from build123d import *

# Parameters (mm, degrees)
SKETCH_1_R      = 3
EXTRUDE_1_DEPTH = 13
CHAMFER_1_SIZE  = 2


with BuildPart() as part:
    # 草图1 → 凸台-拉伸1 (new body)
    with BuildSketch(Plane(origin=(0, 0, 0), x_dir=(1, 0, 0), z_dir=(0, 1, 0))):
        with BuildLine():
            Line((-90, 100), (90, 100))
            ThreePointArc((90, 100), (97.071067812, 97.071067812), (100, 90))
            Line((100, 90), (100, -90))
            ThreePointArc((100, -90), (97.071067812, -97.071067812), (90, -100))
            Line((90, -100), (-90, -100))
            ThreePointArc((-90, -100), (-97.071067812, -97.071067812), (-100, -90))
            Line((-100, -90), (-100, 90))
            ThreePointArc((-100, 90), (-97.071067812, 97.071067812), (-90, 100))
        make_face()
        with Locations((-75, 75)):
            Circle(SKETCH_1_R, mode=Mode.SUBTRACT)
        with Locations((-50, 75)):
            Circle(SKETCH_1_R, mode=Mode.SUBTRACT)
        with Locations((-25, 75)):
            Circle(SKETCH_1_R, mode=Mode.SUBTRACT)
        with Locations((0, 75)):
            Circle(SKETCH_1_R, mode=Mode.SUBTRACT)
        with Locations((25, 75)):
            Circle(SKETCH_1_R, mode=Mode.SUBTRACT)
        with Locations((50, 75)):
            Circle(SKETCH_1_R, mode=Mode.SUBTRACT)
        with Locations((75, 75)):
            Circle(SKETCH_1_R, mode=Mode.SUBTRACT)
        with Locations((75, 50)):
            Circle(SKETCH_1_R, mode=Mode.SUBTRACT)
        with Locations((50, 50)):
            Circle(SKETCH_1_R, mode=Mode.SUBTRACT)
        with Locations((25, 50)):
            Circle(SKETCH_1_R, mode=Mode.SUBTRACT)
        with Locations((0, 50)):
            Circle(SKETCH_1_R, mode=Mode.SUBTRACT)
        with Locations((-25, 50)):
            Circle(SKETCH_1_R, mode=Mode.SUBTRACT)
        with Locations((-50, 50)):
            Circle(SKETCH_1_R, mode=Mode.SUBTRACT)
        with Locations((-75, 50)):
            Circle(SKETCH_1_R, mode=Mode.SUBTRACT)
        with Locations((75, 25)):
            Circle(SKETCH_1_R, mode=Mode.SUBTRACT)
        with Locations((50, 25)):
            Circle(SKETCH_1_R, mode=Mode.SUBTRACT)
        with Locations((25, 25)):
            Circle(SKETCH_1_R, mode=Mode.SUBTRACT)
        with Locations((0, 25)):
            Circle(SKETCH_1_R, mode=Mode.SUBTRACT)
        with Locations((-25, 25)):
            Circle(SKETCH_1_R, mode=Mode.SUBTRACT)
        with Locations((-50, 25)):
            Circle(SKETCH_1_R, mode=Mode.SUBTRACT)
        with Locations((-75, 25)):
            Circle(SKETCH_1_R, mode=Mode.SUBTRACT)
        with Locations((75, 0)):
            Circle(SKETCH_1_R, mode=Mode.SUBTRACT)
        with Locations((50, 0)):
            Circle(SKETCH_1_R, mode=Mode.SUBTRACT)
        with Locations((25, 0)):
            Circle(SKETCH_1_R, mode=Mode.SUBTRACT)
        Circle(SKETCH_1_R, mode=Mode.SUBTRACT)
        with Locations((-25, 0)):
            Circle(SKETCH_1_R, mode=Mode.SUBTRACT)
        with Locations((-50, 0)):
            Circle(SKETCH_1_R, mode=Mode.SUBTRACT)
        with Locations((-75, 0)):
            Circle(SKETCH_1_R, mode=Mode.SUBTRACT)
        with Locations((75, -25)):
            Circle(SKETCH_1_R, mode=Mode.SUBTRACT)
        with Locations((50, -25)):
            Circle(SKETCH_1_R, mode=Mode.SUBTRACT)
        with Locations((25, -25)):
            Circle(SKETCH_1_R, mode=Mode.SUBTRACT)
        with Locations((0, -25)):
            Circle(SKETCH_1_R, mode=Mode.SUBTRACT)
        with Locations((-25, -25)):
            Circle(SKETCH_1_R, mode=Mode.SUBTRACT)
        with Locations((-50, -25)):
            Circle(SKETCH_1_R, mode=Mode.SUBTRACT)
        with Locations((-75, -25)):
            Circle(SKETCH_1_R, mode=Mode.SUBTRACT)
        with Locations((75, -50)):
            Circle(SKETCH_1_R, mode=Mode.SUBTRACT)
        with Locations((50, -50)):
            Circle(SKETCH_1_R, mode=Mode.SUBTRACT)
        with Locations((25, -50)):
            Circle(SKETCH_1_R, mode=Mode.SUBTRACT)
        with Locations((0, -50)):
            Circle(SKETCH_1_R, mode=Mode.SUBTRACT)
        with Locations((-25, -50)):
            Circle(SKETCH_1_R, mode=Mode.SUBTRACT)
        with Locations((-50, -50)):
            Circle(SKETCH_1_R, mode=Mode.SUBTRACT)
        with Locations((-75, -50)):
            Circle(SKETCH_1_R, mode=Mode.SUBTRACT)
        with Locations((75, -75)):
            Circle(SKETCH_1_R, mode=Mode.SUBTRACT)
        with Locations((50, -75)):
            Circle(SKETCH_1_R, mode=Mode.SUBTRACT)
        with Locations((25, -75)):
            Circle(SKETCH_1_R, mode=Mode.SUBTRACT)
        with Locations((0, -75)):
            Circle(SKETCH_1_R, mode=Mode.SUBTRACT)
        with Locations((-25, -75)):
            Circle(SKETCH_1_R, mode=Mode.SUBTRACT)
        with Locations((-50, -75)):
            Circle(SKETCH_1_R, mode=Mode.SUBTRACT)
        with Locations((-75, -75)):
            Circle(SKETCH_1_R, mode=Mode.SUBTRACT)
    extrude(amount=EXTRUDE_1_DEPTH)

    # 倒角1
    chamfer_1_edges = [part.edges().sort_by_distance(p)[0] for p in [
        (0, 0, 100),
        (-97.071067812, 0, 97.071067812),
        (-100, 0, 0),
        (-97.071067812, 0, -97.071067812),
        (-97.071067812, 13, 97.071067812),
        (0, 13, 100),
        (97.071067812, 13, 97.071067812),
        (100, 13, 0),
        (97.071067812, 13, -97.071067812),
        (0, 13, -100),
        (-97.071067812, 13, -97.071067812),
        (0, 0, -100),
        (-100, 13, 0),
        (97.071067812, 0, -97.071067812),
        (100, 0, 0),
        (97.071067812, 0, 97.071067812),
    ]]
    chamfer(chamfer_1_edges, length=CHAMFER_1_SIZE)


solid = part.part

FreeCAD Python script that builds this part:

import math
import FreeCAD as App
import Part
import Sketcher
Q = App.Units.Quantity


def edges_at(feature, points):
    """Names of the edges that pass closest to the given points."""
    edges = feature.Shape.Edges
    near = lambda p: min(range(len(edges)), key=lambda i: edges[i].distToShape(Part.Vertex(*p))[0])
    return sorted({f"Edge{near(p) + 1}" for p in points})

doc = App.newDocument("Part")
body = doc.addObject("PartDesign::Body", "Body")

sketch1 = body.newObject("Sketcher::SketchObject", "Sketch")
sketch1.AttachmentSupport = (doc.getObject("XZ_Plane"), [""])
sketch1.MapMode = "FlatFace"
sketch1.addGeometry([
    Part.LineSegment(App.Vector(90, -100, 0), App.Vector(-90, -100, 0)),
    Part.ArcOfCircle(Part.Circle(App.Vector(-90, -90, 0), App.Vector(0, 0, 1), 10), math.radians(180), math.radians(270)),
    Part.LineSegment(App.Vector(-100, -90, 0), App.Vector(-100, 90, 0)),
    Part.ArcOfCircle(Part.Circle(App.Vector(-90, 90, 0), App.Vector(0, 0, 1), 10), math.radians(90), math.radians(180)),
    Part.LineSegment(App.Vector(-90, 100, 0), App.Vector(90, 100, 0)),
    Part.ArcOfCircle(Part.Circle(App.Vector(90, 90, 0), App.Vector(0, 0, 1), 10), math.radians(0), math.radians(90)),
    Part.LineSegment(App.Vector(100, 90, 0), App.Vector(100, -90, 0)),
    Part.ArcOfCircle(Part.Circle(App.Vector(90, -90, 0), App.Vector(0, 0, 1), 10), math.radians(-90), math.radians(0)),
    Part.Circle(App.Vector(75, 75, 0), App.Vector(0, 0, 1), 3),
    Part.Circle(App.Vector(50, 75, 0), App.Vector(0, 0, 1), 3),
    Part.Circle(App.Vector(75, 50, 0), App.Vector(0, 0, 1), 3),
    Part.Circle(App.Vector(50, 50, 0), App.Vector(0, 0, 1), 3),
    Part.Circle(App.Vector(25, 75, 0), App.Vector(0, 0, 1), 3),
    Part.Circle(App.Vector(25, 50, 0), App.Vector(0, 0, 1), 3),
    Part.Circle(App.Vector(75, 25, 0), App.Vector(0, 0, 1), 3),
    Part.Circle(App.Vector(50, 25, 0), App.Vector(0, 0, 1), 3),
    Part.Circle(App.Vector(25, 25, 0), App.Vector(0, 0, 1), 3),
    Part.Circle(App.Vector(0, 75, 0), App.Vector(0, 0, 1), 3),
    Part.Circle(App.Vector(-25, 75, 0), App.Vector(0, 0, 1), 3),
    Part.Circle(App.Vector(0, 50, 0), App.Vector(0, 0, 1), 3),
    Part.Circle(App.Vector(-25, 50, 0), App.Vector(0, 0, 1), 3),
    Part.Circle(App.Vector(-50, 75, 0), App.Vector(0, 0, 1), 3),
    Part.Circle(App.Vector(-75, 75, 0), App.Vector(0, 0, 1), 3),
    Part.Circle(App.Vector(-50, 50, 0), App.Vector(0, 0, 1), 3),
    Part.Circle(App.Vector(-75, 50, 0), App.Vector(0, 0, 1), 3),
    Part.Circle(App.Vector(0, 25, 0), App.Vector(0, 0, 1), 3),
    Part.Circle(App.Vector(-25, 25, 0), App.Vector(0, 0, 1), 3),
    Part.Circle(App.Vector(-50, 25, 0), App.Vector(0, 0, 1), 3),
    Part.Circle(App.Vector(-75, 25, 0), App.Vector(0, 0, 1), 3),
    Part.Circle(App.Vector(75, 0, 0), App.Vector(0, 0, 1), 3),
    Part.Circle(App.Vector(50, 0, 0), App.Vector(0, 0, 1), 3),
    Part.Circle(App.Vector(75, -25, 0), App.Vector(0, 0, 1), 3),
    Part.Circle(App.Vector(50, -25, 0), App.Vector(0, 0, 1), 3),
    Part.Circle(App.Vector(25, 0, 0), App.Vector(0, 0, 1), 3),
    Part.Circle(App.Vector(25, -25, 0), App.Vector(0, 0, 1), 3),
    Part.Circle(App.Vector(75, -50, 0), App.Vector(0, 0, 1), 3),
    Part.Circle(App.Vector(50, -50, 0), App.Vector(0, 0, 1), 3),
    Part.Circle(App.Vector(75, -75, 0), App.Vector(0, 0, 1), 3),
    Part.Circle(App.Vector(50, -75, 0), App.Vector(0, 0, 1), 3),
    Part.Circle(App.Vector(25, -50, 0), App.Vector(0, 0, 1), 3),
    Part.Circle(App.Vector(25, -75, 0), App.Vector(0, 0, 1), 3),
    Part.Circle(App.Vector(0, 0, 0), App.Vector(0, 0, 1), 3),
    Part.Circle(App.Vector(-25, 0, 0), App.Vector(0, 0, 1), 3),
    Part.Circle(App.Vector(0, -25, 0), App.Vector(0, 0, 1), 3),
    Part.Circle(App.Vector(-25, -25, 0), App.Vector(0, 0, 1), 3),
    Part.Circle(App.Vector(-50, 0, 0), App.Vector(0, 0, 1), 3),
    Part.Circle(App.Vector(-75, 0, 0), App.Vector(0, 0, 1), 3),
    Part.Circle(App.Vector(-50, -25, 0), App.Vector(0, 0, 1), 3),
    Part.Circle(App.Vector(-75, -25, 0), App.Vector(0, 0, 1), 3),
    Part.Circle(App.Vector(0, -50, 0), App.Vector(0, 0, 1), 3),
    Part.Circle(App.Vector(-25, -50, 0), App.Vector(0, 0, 1), 3),
    Part.Circle(App.Vector(0, -75, 0), App.Vector(0, 0, 1), 3),
    Part.Circle(App.Vector(-25, -75, 0), App.Vector(0, 0, 1), 3),
    Part.Circle(App.Vector(-50, -50, 0), App.Vector(0, 0, 1), 3),
    Part.Circle(App.Vector(-75, -50, 0), App.Vector(0, 0, 1), 3),
    Part.Circle(App.Vector(-50, -75, 0), App.Vector(0, 0, 1), 3),
    Part.Circle(App.Vector(-75, -75, 0), App.Vector(0, 0, 1), 3),
], False)
sketch1.addConstraint([
    Sketcher.Constraint("Tangent", 0, 2, 1, 2),
    Sketcher.Constraint("Tangent", 1, 1, 2, 1),
    Sketcher.Constraint("Tangent", 2, 2, 3, 2),
    Sketcher.Constraint("Tangent", 3, 1, 4, 1),
    Sketcher.Constraint("Tangent", 4, 2, 5, 2),
    Sketcher.Constraint("Tangent", 5, 1, 6, 1),
    Sketcher.Constraint("Tangent", 6, 2, 7, 2),
    Sketcher.Constraint("Tangent", 7, 1, 0, 1),
    Sketcher.Constraint("Horizontal", 0),
    Sketcher.Constraint("Vertical", 2),
    Sketcher.Constraint("Horizontal", 4),
    Sketcher.Constraint("Vertical", 6),
    Sketcher.Constraint("Coincident", 41, 3, -1, 1),
    Sketcher.Constraint("Equal", 1, 3),
    Sketcher.Constraint("Equal", 3, 5),
    Sketcher.Constraint("Equal", 5, 7),
    Sketcher.Constraint("Equal", 8, 9),
    Sketcher.Constraint("Equal", 9, 10),
    Sketcher.Constraint("Equal", 10, 11),
    Sketcher.Constraint("Equal", 11, 12),
    Sketcher.Constraint("Equal", 12, 13),
    Sketcher.Constraint("Equal", 13, 14),
    Sketcher.Constraint("Equal", 14, 15),
    Sketcher.Constraint("Equal", 15, 16),
    Sketcher.Constraint("Equal", 16, 17),
    Sketcher.Constraint("Equal", 17, 18),
    Sketcher.Constraint("Equal", 18, 19),
    Sketcher.Constraint("Equal", 19, 20),
    Sketcher.Constraint("Equal", 20, 21),
    Sketcher.Constraint("Equal", 21, 22),
    Sketcher.Constraint("Equal", 22, 23),
    Sketcher.Constraint("Equal", 23, 24),
    Sketcher.Constraint("Equal", 24, 25),
    Sketcher.Constraint("Equal", 25, 26),
    Sketcher.Constraint("Equal", 26, 27),
    Sketcher.Constraint("Equal", 27, 28),
    Sketcher.Constraint("Equal", 28, 29),
    Sketcher.Constraint("Equal", 29, 30),
    Sketcher.Constraint("Equal", 30, 31),
    Sketcher.Constraint("Equal", 31, 32),
    Sketcher.Constraint("Equal", 32, 33),
    Sketcher.Constraint("Equal", 33, 34),
    Sketcher.Constraint("Equal", 34, 35),
    Sketcher.Constraint("Equal", 35, 36),
    Sketcher.Constraint("Equal", 36, 37),
    Sketcher.Constraint("Equal", 37, 38),
    Sketcher.Constraint("Equal", 38, 39),
    Sketcher.Constraint("Equal", 39, 40),
    Sketcher.Constraint("Equal", 40, 41),
    Sketcher.Constraint("Equal", 41, 42),
    Sketcher.Constraint("Equal", 42, 43),
    Sketcher.Constraint("Equal", 43, 44),
    Sketcher.Constraint("Equal", 44, 45),
    Sketcher.Constraint("Equal", 45, 46),
    Sketcher.Constraint("Equal", 46, 47),
    Sketcher.Constraint("Equal", 47, 48),
    Sketcher.Constraint("Equal", 48, 49),
    Sketcher.Constraint("Equal", 49, 50),
    Sketcher.Constraint("Equal", 50, 51),
    Sketcher.Constraint("Equal", 51, 52),
    Sketcher.Constraint("Equal", 52, 53),
    Sketcher.Constraint("Equal", 53, 54),
    Sketcher.Constraint("Equal", 54, 55),
    Sketcher.Constraint("Equal", 55, 56),
    Sketcher.Constraint("Symmetric", 1, 3, 5, 3, -1, 1),
    Sketcher.Constraint("Symmetric", 28, 3, 31, 3, -1, 1),
    Sketcher.Constraint("Symmetric", 27, 3, 32, 3, -1, 1),
    Sketcher.Constraint("Symmetric", 26, 3, 34, 3, -1, 1),
    Sketcher.Constraint("Symmetric", 24, 3, 35, 3, -1, 1),
    Sketcher.Constraint("Symmetric", 23, 3, 36, 3, -1, 1),
    Sketcher.Constraint("Symmetric", 22, 3, 37, 3, -1, 1),
    Sketcher.Constraint("Symmetric", 21, 3, 38, 3, -1, 1),
    Sketcher.Constraint("Symmetric", 20, 3, 39, 3, -1, 1),
    Sketcher.Constraint("Symmetric", 18, 3, 40, 3, -1, 1),
    Sketcher.Constraint("Symmetric", 33, 3, 42, 3, -1, 1),
    Sketcher.Constraint("Symmetric", 25, 3, 43, 3, -1, 1),
    Sketcher.Constraint("Symmetric", 16, 3, 44, 3, -1, 1),
    Sketcher.Constraint("Symmetric", 30, 3, 45, 3, -1, 1),
    Sketcher.Constraint("Symmetric", 29, 3, 46, 3, -1, 1),
    Sketcher.Constraint("Symmetric", 15, 3, 47, 3, -1, 1),
    Sketcher.Constraint("Symmetric", 14, 3, 48, 3, -1, 1),
    Sketcher.Constraint("Symmetric", 19, 3, 49, 3, -1, 1),
    Sketcher.Constraint("Symmetric", 13, 3, 50, 3, -1, 1),
    Sketcher.Constraint("Symmetric", 17, 3, 51, 3, -1, 1),
    Sketcher.Constraint("Symmetric", 12, 3, 52, 3, -1, 1),
    Sketcher.Constraint("Symmetric", 11, 3, 53, 3, -1, 1),
    Sketcher.Constraint("Symmetric", 10, 3, 54, 3, -1, 1),
    Sketcher.Constraint("Symmetric", 9, 3, 55, 3, -1, 1),
    Sketcher.Constraint("Symmetric", 8, 3, 56, 3, -1, 1),
    Sketcher.Constraint("Symmetric", 12, 3, 18, 3, -2),
    Sketcher.Constraint("Symmetric", 13, 3, 20, 3, -2),
    Sketcher.Constraint("Symmetric", 9, 3, 21, 3, -2),
    Sketcher.Constraint("Symmetric", 8, 3, 22, 3, -2),
    Sketcher.Constraint("Symmetric", 11, 3, 23, 3, -2),
    Sketcher.Constraint("Symmetric", 10, 3, 24, 3, -2),
    Sketcher.Constraint("Symmetric", 16, 3, 26, 3, -2),
    Sketcher.Constraint("Symmetric", 15, 3, 27, 3, -2),
    Sketcher.Constraint("Symmetric", 14, 3, 28, 3, -2),
    Sketcher.Constraint("PointOnObject", 17, 3, -2),
    Sketcher.Constraint("PointOnObject", 19, 3, -2),
    Sketcher.Constraint("PointOnObject", 25, 3, -2),
    Sketcher.Constraint("PointOnObject", 29, 3, -1),
    Sketcher.Constraint("PointOnObject", 30, 3, -1),
    Sketcher.Constraint("PointOnObject", 33, 3, -1),
    Sketcher.Constraint("Horizontal", 8, 3, 9, 3),
    Sketcher.Constraint("Horizontal", 10, 3, 11, 3),
    Sketcher.Constraint("Horizontal", 9, 3, 12, 3),
    Sketcher.Constraint("Horizontal", 11, 3, 13, 3),
    Sketcher.Constraint("Horizontal", 14, 3, 15, 3),
    Sketcher.Constraint("Horizontal", 15, 3, 16, 3),
    Sketcher.Constraint("Horizontal", 12, 3, 17, 3),
    Sketcher.Constraint("Horizontal", 13, 3, 19, 3),
    Sketcher.Constraint("Horizontal", 16, 3, 25, 3),
    Sketcher.Constraint("Vertical", 8, 3, 10, 3),
    Sketcher.Constraint("Vertical", 9, 3, 11, 3),
    Sketcher.Constraint("Vertical", 12, 3, 13, 3),
    Sketcher.Constraint("Vertical", 10, 3, 14, 3),
    Sketcher.Constraint("Vertical", 11, 3, 15, 3),
    Sketcher.Constraint("Vertical", 13, 3, 16, 3),
    Sketcher.Constraint("Vertical", 14, 3, 29, 3),
    Sketcher.Constraint("Vertical", 15, 3, 30, 3),
    Sketcher.Constraint("Vertical", 16, 3, 33, 3),
    Sketcher.Constraint("Equal", 4, 2),
    Sketcher.Constraint("Diameter", 8, Q("6 mm")),
    Sketcher.Constraint("Radius", 1, Q("10 mm")),
    Sketcher.Constraint("DistanceX", 0, 2, 0, 1, Q("180 mm")),
    Sketcher.Constraint("DistanceX", -1, 1, 8, 3, Q("75 mm")),
    Sketcher.Constraint("DistanceY", -1, 1, 8, 3, Q("75 mm")),
    Sketcher.Constraint("DistanceX", -1, 1, 9, 3, Q("50 mm")),
    Sketcher.Constraint("DistanceY", -1, 1, 10, 3, Q("50 mm")),
    Sketcher.Constraint("DistanceX", -1, 1, 12, 3, Q("25 mm")),
    Sketcher.Constraint("DistanceY", -1, 1, 14, 3, Q("25 mm")),
])
pad1 = body.newObject("PartDesign::Pad", "Pad")
pad1.Profile = sketch1
pad1.Length = 13
pad1.Reversed = True
doc.recompute()

chamfer = body.newObject("PartDesign::Chamfer", "Chamfer")
chamfer.Base = (pad1, edges_at(pad1, [
    (0, 0, 100),
    (-97.071, 0, 97.071),
    (-100, 0, 0),
    (-97.071, 0, -97.071),
    (-97.071, 13, 97.071),
    (0, 13, 100),
    (97.071, 13, 97.071),
    (100, 13, 0),
    (97.071, 13, -97.071),
    (0, 13, -100),
    (-97.071, 13, -97.071),
    (0, 0, -100),
    (-100, 13, 0),
    (97.071, 0, -97.071),
    (100, 0, 0),
    (97.071, 0, 97.071),
]))
chamfer.Size = 2

doc.recompute()
